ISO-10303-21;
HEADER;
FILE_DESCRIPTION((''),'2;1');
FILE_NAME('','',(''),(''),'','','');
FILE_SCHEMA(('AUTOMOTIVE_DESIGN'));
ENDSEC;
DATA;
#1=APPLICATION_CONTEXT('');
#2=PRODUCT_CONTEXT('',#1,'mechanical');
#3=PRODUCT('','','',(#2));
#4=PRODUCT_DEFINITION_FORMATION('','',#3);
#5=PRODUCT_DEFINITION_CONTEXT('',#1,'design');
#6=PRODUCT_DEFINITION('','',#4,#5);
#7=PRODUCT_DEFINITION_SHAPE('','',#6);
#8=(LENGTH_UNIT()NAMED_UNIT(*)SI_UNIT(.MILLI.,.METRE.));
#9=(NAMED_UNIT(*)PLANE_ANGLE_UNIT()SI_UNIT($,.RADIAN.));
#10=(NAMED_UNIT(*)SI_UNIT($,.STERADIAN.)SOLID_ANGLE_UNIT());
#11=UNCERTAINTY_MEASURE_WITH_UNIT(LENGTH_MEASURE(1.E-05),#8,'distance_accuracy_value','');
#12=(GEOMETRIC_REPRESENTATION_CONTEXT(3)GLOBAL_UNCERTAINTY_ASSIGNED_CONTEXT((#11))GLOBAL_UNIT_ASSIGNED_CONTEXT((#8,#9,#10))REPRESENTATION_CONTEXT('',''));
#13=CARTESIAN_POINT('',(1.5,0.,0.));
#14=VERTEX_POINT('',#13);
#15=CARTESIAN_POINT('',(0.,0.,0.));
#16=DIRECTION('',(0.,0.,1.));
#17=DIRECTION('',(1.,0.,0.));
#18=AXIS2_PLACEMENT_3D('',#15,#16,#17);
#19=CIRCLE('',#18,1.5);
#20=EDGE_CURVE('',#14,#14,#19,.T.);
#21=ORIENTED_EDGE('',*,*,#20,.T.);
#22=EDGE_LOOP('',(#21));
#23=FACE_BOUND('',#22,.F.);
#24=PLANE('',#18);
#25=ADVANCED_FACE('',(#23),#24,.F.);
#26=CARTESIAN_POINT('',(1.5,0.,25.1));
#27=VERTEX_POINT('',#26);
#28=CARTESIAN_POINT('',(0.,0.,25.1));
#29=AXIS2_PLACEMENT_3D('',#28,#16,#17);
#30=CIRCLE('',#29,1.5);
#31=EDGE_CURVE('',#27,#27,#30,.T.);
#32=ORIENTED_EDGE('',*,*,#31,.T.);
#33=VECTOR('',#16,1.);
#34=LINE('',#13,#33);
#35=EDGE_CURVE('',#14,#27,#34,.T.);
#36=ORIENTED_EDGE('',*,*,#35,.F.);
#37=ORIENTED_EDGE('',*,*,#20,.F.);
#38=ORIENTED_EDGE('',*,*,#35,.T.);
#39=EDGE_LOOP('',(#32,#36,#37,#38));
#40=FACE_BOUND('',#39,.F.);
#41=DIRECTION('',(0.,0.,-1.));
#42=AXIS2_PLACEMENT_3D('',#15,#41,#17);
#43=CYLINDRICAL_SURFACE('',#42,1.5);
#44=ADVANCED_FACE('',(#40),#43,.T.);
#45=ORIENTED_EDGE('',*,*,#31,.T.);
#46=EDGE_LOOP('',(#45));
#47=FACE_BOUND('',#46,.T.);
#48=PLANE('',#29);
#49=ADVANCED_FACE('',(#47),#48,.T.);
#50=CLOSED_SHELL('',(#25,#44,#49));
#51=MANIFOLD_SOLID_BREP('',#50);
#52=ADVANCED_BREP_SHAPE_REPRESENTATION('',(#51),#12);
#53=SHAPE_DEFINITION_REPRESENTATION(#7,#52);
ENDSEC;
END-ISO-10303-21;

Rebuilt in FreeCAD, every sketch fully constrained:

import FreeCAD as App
import Part
import Sketcher
Q = App.Units.Quantity

doc = App.newDocument("Part")
params = doc.addObject("Spreadsheet::Sheet", "Params")
for row, (alias, value) in enumerate([
    ("sketch1_diameter", "3 mm"),
    ("pad1_length", "25.1 mm"),
], start=1):
    params.set(f"A{row}", alias)
    params.set(f"B{row}", "=" + value)
    params.setAlias(f"B{row}", alias)

body = doc.addObject("PartDesign::Body", "Body")

# Sketch on XY plane
sketch1 = doc.addObject("Sketcher::SketchObject", "Sketch")
body.addObject(sketch1)
sketch1.AttachmentSupport = (doc.XY_Plane, [""])
sketch1.MapMode = "FlatFace"
sketch1.addGeometry(Part.Circle(App.Vector(0, 0, 0), App.Vector(0, 0, 1), 1.5), False)
sketch1.addConstraint(Sketcher.Constraint("Coincident", 0, 3, -1, 1))
sketch1.addConstraint(Sketcher.Constraint("Diameter", 0, Q("3 mm")))
sketch1.setExpression("Constraints[1]", "Params.sketch1_diameter")
pad1 = doc.addObject("PartDesign::Pad", "Pad")
body.addObject(pad1)
pad1.Profile = sketch1
pad1.setExpression("Length", "Params.pad1_length")

doc.recompute()
